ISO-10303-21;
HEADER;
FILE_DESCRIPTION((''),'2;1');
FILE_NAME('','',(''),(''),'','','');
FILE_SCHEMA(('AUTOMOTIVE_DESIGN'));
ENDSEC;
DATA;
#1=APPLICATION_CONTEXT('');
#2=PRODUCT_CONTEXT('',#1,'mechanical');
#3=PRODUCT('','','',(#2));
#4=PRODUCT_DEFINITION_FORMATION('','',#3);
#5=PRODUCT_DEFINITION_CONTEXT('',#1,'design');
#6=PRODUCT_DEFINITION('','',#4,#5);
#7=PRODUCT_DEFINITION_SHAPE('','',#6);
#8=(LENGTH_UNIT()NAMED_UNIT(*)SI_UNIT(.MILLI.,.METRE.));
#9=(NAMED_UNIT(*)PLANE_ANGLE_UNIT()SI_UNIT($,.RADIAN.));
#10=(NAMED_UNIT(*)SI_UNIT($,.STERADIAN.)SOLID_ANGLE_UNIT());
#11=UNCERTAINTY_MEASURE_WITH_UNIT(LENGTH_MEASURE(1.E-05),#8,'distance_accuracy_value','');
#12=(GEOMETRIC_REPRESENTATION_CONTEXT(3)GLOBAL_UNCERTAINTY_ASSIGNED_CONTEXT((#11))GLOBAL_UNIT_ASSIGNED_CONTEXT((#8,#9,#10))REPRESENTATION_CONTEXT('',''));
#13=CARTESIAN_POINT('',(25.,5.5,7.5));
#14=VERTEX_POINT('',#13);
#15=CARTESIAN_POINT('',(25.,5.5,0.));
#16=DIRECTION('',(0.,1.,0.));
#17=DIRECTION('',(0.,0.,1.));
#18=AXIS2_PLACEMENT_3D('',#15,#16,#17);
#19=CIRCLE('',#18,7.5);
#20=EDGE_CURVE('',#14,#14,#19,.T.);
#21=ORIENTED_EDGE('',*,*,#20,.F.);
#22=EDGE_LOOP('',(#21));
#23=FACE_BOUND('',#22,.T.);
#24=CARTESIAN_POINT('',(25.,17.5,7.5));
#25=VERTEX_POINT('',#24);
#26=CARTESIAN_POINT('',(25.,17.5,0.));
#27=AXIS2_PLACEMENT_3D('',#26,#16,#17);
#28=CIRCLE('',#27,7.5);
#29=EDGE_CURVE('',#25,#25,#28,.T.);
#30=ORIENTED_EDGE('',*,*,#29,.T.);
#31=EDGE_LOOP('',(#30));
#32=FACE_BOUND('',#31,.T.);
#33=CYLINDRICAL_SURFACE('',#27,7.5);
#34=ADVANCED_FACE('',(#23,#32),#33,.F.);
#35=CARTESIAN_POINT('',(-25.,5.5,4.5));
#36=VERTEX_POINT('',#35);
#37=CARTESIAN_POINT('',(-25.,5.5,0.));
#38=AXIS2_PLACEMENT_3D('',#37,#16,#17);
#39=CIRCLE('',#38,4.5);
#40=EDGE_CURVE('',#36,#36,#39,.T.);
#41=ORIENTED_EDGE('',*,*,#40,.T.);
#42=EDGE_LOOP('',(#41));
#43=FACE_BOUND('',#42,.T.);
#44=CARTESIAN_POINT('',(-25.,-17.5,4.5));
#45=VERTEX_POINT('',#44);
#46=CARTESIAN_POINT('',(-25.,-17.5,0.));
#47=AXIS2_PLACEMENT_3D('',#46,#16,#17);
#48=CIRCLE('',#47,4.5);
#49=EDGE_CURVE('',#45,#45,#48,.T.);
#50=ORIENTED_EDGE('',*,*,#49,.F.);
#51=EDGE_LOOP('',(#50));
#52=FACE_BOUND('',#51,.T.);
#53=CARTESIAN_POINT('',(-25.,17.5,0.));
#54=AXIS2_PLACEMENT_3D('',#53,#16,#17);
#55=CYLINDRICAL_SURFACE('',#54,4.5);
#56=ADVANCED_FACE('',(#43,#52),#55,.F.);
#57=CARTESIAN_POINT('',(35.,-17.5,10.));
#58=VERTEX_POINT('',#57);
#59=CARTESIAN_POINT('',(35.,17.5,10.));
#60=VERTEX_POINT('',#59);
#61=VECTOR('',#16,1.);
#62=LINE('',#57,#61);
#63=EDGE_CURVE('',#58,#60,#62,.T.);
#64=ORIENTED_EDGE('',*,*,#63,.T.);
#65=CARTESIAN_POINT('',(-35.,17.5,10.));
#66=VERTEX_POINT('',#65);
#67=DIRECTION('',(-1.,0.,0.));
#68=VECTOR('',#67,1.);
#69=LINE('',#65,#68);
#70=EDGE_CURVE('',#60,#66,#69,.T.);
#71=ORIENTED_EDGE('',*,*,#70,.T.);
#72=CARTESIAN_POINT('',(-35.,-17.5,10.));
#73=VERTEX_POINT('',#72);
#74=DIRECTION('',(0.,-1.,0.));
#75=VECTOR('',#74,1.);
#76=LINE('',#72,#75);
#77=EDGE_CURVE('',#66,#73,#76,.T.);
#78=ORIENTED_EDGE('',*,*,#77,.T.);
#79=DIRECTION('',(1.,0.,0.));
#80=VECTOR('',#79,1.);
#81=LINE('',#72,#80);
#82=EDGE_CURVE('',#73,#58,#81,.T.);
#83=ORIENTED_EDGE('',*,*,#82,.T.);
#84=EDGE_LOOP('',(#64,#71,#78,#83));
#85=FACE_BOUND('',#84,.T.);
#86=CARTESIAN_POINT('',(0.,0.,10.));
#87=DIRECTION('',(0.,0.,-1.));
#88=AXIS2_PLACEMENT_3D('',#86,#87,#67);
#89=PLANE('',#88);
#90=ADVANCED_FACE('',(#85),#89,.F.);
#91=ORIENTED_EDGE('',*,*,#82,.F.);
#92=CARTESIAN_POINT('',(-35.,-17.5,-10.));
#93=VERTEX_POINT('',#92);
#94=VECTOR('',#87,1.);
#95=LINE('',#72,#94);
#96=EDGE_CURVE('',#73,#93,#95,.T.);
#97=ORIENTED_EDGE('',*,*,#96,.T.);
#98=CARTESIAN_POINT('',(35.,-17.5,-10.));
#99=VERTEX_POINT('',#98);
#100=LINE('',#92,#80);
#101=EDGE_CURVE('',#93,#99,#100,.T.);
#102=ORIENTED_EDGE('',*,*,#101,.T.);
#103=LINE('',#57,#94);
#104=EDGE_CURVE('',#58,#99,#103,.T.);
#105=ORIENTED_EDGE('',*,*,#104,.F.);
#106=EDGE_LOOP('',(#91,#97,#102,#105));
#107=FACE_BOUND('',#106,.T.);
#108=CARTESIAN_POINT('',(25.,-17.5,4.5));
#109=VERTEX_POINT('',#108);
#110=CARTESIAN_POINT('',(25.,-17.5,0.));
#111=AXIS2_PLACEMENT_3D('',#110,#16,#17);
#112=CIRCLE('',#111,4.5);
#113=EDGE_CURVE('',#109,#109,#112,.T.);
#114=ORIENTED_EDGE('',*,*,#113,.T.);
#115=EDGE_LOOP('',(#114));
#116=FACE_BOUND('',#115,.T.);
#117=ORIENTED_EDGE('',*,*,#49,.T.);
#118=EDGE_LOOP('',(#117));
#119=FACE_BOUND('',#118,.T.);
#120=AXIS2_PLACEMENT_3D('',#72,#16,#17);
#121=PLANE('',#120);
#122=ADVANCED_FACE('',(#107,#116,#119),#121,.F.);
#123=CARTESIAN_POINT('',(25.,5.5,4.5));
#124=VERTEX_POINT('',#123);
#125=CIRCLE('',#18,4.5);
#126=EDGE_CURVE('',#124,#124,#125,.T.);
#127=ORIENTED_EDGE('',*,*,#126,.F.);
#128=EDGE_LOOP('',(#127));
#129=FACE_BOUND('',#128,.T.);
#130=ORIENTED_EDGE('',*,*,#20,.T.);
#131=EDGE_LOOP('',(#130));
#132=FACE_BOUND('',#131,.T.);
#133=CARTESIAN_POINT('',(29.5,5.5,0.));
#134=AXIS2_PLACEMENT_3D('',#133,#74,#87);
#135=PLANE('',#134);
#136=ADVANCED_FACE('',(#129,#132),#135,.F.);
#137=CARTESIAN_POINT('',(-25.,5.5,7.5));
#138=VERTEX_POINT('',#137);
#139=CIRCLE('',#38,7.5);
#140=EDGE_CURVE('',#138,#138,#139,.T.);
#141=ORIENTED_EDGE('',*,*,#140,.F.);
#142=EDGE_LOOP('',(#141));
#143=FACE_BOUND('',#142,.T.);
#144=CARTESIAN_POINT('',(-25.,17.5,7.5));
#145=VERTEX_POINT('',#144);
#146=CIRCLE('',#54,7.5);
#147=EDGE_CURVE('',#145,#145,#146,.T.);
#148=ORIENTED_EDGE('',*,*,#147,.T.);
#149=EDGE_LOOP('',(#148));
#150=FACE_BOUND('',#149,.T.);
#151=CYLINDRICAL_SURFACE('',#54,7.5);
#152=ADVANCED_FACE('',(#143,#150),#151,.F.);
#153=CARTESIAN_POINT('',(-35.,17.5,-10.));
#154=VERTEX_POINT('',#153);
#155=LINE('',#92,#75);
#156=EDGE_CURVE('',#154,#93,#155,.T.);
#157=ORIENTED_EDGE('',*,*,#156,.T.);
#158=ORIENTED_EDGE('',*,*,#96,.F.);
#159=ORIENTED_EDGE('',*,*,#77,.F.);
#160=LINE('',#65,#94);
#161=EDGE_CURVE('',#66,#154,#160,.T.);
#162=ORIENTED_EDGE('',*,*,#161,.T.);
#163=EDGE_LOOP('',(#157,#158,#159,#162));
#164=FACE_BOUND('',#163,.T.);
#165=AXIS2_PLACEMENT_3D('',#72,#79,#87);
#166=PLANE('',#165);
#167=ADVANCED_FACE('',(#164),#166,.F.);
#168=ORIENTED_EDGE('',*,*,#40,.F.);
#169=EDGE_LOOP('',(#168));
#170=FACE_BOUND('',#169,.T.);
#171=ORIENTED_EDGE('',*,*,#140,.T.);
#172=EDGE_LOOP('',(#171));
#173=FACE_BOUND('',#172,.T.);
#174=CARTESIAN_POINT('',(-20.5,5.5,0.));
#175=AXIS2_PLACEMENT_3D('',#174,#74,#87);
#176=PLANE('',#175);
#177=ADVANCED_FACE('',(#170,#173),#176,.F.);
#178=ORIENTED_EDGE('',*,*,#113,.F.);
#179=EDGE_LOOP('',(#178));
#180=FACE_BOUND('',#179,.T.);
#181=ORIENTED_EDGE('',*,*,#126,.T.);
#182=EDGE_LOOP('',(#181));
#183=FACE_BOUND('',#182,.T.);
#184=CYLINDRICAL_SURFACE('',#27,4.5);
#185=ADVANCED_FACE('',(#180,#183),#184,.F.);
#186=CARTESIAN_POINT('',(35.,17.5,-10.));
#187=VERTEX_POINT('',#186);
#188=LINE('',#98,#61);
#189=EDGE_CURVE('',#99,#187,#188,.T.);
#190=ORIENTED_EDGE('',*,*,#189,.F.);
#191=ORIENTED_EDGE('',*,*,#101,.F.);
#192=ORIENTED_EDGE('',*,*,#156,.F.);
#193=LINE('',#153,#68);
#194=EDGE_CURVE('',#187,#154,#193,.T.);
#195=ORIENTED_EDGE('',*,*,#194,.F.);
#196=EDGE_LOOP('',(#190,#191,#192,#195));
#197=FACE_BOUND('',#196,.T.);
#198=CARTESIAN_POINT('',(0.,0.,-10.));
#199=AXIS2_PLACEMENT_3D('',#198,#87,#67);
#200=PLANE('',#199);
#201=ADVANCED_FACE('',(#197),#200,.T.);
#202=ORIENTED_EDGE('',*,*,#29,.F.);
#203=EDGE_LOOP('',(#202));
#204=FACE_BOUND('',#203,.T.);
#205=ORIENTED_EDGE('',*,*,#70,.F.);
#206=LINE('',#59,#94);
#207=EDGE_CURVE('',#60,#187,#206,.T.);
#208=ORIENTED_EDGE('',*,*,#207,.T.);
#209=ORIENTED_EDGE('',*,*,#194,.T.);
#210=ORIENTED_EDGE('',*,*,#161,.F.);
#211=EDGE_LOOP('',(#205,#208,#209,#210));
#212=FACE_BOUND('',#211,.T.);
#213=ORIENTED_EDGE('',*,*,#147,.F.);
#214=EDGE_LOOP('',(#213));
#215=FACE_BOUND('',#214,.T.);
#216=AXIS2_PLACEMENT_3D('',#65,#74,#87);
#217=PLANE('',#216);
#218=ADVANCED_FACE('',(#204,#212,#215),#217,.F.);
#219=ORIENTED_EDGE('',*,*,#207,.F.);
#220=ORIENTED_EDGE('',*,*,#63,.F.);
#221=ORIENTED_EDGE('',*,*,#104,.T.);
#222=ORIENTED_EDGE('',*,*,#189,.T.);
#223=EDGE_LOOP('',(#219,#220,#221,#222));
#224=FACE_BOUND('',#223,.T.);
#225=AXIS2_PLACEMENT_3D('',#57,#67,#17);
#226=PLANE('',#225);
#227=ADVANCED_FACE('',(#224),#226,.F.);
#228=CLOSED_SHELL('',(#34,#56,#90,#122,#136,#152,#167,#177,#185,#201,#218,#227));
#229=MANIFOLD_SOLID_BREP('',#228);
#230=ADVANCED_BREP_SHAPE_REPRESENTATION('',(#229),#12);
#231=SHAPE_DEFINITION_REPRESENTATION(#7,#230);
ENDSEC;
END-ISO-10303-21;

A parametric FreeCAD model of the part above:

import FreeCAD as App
import Part
import Sketcher
from FreeCAD import Vector

doc = App.newDocument("Part")
body = doc.addObject("PartDesign::Body", "Body")

sketch1 = body.newObject("Sketcher::SketchObject", "Sketch")
sketch1.AttachmentSupport = (doc.getObject("XY_Plane"), [""])
sketch1.MapMode = "FlatFace"
sketch1.addGeometry(Part.LineSegment(Vector(-35, 18, 0), Vector(-35, -18, 0)), False)
sketch1.addGeometry(Part.LineSegment(Vector(-35, -18, 0), Vector(35, -18, 0)), False)
sketch1.addGeometry(Part.LineSegment(Vector(35, -18, 0), Vector(35, 18, 0)), False)
sketch1.addGeometry(Part.LineSegment(Vector(35, 18, 0), Vector(-35, 18, 0)), False)
sketch1.addConstraint(Sketcher.Constraint("Coincident", 0, 2, 1, 1))
sketch1.addConstraint(Sketcher.Constraint("Coincident", 1, 2, 2, 1))
sketch1.addConstraint(Sketcher.Constraint("Coincident", 2, 2, 3, 1))
sketch1.addConstraint(Sketcher.Constraint("Coincident", 3, 2, 0, 1))
sketch1.addConstraint(Sketcher.Constraint("Vertical", 0))
sketch1.addConstraint(Sketcher.Constraint("Horizontal", 1))
sketch1.addConstraint(Sketcher.Constraint("Vertical", 2))
sketch1.addConstraint(Sketcher.Constraint("Horizontal", 3))
sketch1.addConstraint(Sketcher.Constraint("Symmetric", 0, 2, 2, 2, -1, 1))
sketch1.addConstraint(Sketcher.Constraint("DistanceX", 1, 1, 1, 2, 70.0))
sketch1.addConstraint(Sketcher.Constraint("DistanceY", 0, 2, 0, 1, 35.0))
pad1 = body.newObject("PartDesign::Pad", "Pad")
pad1.Profile = sketch1
pad1.Length = 20
pad1.Midplane = True

sketch2 = body.newObject("Sketcher::SketchObject", "Sketch001")
sketch2.AttachmentSupport = (doc.getObject("XZ_Plane"), [""])
sketch2.MapMode = "FlatFace"
sketch2.AttachmentOffset = App.Placement(Vector(0, 0, -17.5), App.Rotation())
sketch2.addGeometry(Part.Circle(Vector(-25, 0, 0), Vector(0, 0, 1), 4.5), False)
sketch2.addGeometry(Part.Circle(Vector(25, 0, 0), Vector(0, 0, 1), 4.5), False)
sketch2.addConstraint(Sketcher.Constraint("Equal", 0, 1))
sketch2.addConstraint(Sketcher.Constraint("Symmetric", 0, 3, 1, 3, -1, 1))
sketch2.addConstraint(Sketcher.Constraint("PointOnObject", 0, 3, -1))
sketch2.addConstraint(Sketcher.Constraint("Diameter", 0, 9.0))
sketch2.addConstraint(Sketcher.Constraint("DistanceX", 0, 3, -1, 1, 25.0))
doc.recompute()
hole = body.newObject("PartDesign::Hole", "Hole")
hole.Profile = sketch2
hole.ThreadType = "None"
hole.Diameter = 9
hole.DepthType = "ThroughAll"
hole.HoleCutType = "Counterbore"
hole.HoleCutDiameter = 15
hole.HoleCutDepth = 12
hole.Reversed = True

doc.recompute()
